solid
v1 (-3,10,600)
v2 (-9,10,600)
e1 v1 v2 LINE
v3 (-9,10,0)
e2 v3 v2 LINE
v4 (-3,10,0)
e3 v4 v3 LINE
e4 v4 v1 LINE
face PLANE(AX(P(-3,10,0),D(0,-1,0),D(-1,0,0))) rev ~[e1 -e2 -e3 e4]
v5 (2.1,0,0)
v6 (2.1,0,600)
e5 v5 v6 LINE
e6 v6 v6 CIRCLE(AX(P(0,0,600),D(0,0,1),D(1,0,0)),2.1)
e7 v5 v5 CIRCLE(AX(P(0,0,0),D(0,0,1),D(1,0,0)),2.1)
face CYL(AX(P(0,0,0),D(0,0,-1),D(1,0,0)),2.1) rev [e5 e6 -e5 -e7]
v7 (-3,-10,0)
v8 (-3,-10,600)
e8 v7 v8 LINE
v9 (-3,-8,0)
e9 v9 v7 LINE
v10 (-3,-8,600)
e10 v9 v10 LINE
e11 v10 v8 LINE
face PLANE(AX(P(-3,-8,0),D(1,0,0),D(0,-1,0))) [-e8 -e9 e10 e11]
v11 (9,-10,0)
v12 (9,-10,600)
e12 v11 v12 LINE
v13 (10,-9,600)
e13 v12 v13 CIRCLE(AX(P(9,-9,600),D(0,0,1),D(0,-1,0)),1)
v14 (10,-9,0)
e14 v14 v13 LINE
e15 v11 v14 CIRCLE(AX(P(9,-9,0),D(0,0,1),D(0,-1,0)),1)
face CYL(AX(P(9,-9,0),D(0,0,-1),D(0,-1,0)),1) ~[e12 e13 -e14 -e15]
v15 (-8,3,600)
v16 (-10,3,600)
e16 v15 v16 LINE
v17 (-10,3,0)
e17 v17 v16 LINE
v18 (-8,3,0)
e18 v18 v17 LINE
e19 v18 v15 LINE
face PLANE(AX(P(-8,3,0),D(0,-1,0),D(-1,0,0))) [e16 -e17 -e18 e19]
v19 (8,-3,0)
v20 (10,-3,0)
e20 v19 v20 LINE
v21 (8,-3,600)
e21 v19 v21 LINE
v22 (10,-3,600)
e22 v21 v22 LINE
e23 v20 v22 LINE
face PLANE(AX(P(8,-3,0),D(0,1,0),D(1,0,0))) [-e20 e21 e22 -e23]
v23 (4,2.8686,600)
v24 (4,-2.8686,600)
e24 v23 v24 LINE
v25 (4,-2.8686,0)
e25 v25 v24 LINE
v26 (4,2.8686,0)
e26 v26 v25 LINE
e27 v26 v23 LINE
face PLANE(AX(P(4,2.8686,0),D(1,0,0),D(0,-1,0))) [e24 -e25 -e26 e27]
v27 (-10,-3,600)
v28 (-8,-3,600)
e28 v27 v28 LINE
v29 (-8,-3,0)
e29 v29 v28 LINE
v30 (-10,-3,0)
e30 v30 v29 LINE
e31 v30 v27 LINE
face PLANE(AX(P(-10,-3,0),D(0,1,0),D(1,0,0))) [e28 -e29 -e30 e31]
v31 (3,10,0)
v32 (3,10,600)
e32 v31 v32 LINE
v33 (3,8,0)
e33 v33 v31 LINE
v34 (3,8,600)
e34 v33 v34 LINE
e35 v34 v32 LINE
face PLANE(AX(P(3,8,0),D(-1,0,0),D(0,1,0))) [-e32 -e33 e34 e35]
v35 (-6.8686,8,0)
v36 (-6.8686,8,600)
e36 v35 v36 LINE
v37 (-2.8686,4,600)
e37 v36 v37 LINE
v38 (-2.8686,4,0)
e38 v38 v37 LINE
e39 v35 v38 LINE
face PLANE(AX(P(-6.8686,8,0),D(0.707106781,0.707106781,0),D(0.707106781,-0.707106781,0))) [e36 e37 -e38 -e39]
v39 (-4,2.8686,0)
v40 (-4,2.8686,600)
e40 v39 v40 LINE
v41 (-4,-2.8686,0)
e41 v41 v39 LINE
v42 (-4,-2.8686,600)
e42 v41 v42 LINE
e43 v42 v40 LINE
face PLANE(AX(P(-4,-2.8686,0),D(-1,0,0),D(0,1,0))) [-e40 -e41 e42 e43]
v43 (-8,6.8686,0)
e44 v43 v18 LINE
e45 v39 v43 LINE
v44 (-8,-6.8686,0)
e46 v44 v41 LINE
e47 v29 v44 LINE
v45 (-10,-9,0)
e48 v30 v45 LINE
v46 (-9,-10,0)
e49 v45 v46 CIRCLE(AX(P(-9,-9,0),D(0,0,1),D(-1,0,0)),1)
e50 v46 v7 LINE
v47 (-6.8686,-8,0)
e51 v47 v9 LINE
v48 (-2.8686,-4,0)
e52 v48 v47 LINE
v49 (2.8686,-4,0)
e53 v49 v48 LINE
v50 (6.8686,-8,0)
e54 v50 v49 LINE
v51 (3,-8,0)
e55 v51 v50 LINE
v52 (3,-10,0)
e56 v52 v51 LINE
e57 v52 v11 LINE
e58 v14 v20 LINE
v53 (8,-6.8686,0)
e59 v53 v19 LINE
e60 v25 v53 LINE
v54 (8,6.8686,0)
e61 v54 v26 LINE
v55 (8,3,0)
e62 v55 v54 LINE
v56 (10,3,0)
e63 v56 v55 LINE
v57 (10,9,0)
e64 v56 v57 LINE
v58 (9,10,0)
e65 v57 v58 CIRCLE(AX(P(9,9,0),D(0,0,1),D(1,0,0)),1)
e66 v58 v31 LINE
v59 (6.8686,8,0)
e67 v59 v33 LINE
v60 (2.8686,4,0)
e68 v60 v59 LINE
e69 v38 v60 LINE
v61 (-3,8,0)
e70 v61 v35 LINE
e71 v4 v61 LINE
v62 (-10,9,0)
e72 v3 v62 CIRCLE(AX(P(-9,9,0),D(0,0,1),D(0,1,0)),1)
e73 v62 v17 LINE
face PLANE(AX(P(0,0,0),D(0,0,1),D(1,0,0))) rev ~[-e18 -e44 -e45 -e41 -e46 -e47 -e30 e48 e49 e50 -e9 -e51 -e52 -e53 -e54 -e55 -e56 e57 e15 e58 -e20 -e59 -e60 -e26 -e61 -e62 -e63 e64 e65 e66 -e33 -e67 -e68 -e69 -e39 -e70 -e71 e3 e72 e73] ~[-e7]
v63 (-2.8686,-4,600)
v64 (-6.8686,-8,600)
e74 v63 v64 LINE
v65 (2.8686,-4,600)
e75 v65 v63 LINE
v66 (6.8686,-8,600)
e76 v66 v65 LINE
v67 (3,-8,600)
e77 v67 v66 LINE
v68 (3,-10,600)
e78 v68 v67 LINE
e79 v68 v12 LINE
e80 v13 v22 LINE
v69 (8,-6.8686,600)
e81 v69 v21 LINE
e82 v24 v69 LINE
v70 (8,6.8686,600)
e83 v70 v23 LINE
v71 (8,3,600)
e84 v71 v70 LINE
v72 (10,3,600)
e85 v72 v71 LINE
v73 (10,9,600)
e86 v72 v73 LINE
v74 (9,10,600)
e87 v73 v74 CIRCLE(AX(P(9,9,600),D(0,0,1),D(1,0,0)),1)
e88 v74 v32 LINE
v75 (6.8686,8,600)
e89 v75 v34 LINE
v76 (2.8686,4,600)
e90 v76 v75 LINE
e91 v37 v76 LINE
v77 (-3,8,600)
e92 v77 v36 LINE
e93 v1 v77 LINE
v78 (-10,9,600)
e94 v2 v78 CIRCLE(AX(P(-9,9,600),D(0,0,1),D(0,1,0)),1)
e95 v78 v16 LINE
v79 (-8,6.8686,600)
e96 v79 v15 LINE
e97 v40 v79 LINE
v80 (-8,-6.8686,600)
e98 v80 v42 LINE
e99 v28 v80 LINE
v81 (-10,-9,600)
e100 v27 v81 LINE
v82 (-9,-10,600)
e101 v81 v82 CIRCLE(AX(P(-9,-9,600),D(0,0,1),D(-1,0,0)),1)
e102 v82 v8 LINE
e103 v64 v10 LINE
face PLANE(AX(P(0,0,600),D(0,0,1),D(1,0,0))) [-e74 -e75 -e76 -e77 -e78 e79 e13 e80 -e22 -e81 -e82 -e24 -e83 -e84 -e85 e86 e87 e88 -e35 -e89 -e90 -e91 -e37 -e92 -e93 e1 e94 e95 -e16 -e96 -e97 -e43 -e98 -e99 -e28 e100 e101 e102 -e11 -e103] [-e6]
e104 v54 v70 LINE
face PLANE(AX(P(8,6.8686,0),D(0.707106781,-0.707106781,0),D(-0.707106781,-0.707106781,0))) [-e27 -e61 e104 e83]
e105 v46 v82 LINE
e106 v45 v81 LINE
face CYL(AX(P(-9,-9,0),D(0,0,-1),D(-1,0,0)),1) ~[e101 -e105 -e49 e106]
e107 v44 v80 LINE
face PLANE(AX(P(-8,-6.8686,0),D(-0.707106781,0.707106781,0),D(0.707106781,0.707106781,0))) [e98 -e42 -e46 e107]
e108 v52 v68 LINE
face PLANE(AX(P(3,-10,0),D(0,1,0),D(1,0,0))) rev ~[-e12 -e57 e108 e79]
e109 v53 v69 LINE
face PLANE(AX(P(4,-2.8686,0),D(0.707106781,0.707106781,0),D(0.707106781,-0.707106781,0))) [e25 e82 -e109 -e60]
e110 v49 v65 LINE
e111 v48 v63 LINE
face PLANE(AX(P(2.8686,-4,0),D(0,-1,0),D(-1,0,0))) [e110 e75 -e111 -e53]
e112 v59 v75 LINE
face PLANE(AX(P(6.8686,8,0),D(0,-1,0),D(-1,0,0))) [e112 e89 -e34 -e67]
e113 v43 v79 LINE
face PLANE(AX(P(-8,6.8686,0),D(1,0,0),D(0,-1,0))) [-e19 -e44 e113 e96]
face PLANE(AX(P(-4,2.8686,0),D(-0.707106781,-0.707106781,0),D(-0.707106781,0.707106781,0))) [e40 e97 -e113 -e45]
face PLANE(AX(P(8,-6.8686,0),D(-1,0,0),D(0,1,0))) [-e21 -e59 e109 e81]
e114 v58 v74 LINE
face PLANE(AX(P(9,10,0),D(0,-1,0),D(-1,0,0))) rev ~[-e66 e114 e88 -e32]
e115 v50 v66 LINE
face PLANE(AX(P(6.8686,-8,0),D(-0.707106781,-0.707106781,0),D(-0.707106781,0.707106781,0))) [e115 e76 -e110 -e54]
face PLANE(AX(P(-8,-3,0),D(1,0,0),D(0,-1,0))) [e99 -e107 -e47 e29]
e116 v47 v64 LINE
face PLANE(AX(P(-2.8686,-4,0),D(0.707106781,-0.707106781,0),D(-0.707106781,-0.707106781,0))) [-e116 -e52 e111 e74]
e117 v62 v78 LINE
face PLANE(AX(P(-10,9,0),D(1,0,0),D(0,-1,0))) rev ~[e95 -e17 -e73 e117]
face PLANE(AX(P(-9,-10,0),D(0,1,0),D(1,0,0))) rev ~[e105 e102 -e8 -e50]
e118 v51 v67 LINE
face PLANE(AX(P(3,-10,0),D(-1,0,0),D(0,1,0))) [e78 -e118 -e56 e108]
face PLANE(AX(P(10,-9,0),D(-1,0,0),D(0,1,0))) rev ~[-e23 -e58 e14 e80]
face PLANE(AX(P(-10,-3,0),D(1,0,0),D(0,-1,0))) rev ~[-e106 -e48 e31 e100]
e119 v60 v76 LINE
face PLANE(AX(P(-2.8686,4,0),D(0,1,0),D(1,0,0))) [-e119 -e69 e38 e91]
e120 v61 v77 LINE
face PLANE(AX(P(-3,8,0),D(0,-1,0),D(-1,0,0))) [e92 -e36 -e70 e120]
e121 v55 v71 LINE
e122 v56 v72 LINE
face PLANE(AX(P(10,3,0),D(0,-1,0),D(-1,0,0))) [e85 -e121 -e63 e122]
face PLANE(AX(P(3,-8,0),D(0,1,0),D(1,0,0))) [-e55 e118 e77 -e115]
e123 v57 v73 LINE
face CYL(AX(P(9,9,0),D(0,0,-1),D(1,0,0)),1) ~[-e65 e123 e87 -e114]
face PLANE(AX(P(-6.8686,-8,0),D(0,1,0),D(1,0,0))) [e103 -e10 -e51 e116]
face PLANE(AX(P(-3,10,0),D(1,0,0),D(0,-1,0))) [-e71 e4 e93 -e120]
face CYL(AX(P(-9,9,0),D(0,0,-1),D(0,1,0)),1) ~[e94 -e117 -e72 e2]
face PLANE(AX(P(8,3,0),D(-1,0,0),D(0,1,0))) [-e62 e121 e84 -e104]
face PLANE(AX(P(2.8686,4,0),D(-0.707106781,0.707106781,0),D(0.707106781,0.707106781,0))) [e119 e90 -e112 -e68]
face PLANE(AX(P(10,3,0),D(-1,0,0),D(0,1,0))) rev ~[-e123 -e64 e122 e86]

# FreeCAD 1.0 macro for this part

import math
import FreeCAD as App
import Part
import Sketcher
Q = App.Units.Quantity

doc = App.newDocument("Part")
body = doc.addObject("PartDesign::Body", "Body")

# Sketch on XY plane
sketch1 = doc.addObject("Sketcher::SketchObject", "Sketch")
body.addObject(sketch1)
sketch1.AttachmentSupport = (doc.XY_Plane, [""])
sketch1.MapMode = "FlatFace"
sketch1.addGeometry([
    Part.LineSegment(App.Vector(8, 3, 0), App.Vector(10, 3, 0)),  # 0
    Part.LineSegment(App.Vector(10, 3, 0), App.Vector(10, 9, 0)),  # 1
    Part.ArcOfCircle(Part.Circle(App.Vector(9, 9, 0), App.Vector(0, 0, 1), 1), math.radians(0), math.radians(90)),  # 2
    Part.LineSegment(App.Vector(9, 10, 0), App.Vector(3, 10, 0)),  # 3
    Part.LineSegment(App.Vector(3, 10, 0), App.Vector(3, 8, 0)),  # 4
    Part.LineSegment(App.Vector(3, 8, 0), App.Vector(6.9, 8, 0)),  # 5
    Part.LineSegment(App.Vector(6.9, 8, 0), App.Vector(2.9, 4, 0)),  # 6
    Part.LineSegment(App.Vector(2.9, 4, 0), App.Vector(-2.9, 4, 0)),  # 7
    Part.LineSegment(App.Vector(-2.9, 4, 0), App.Vector(-6.9, 8, 0)),  # 8
    Part.LineSegment(App.Vector(-6.9, 8, 0), App.Vector(-3, 8, 0)),  # 9
    Part.LineSegment(App.Vector(-3, 8, 0), App.Vector(-3, 10, 0)),  # 10
    Part.LineSegment(App.Vector(-3, 10, 0), App.Vector(-9, 10, 0)),  # 11
    Part.ArcOfCircle(Part.Circle(App.Vector(-9, 9, 0), App.Vector(0, 0, 1), 1), math.radians(90), math.radians(180)),  # 12
    Part.LineSegment(App.Vector(-10, 9, 0), App.Vector(-10, 3, 0)),  # 13
    Part.LineSegment(App.Vector(-10, 3, 0), App.Vector(-8, 3, 0)),  # 14
    Part.LineSegment(App.Vector(-8, 3, 0), App.Vector(-8, 6.9, 0)),  # 15
    Part.LineSegment(App.Vector(-8, 6.9, 0), App.Vector(-4, 2.9, 0)),  # 16
    Part.LineSegment(App.Vector(-4, 2.9, 0), App.Vector(-4, -2.9, 0)),  # 17
    Part.LineSegment(App.Vector(-4, -2.9, 0), App.Vector(-8, -6.9, 0)),  # 18
    Part.LineSegment(App.Vector(-8, -6.9, 0), App.Vector(-8, -3, 0)),  # 19
    Part.LineSegment(App.Vector(-8, -3, 0), App.Vector(-10, -3, 0)),  # 20
    Part.LineSegment(App.Vector(-10, -3, 0), App.Vector(-10, -9, 0)),  # 21
    Part.ArcOfCircle(Part.Circle(App.Vector(-9, -9, 0), App.Vector(0, 0, 1), 1), math.radians(180), math.radians(270)),  # 22
    Part.LineSegment(App.Vector(-9, -10, 0), App.Vector(-3, -10, 0)),  # 23
    Part.LineSegment(App.Vector(-3, -10, 0), App.Vector(-3, -8, 0)),  # 24
    Part.LineSegment(App.Vector(-3, -8, 0), App.Vector(-6.9, -8, 0)),  # 25
    Part.LineSegment(App.Vector(-6.9, -8, 0), App.Vector(-2.9, -4, 0)),  # 26
    Part.LineSegment(App.Vector(-2.9, -4, 0), App.Vector(2.9, -4, 0)),  # 27
    Part.LineSegment(App.Vector(2.9, -4, 0), App.Vector(6.9, -8, 0)),  # 28
    Part.LineSegment(App.Vector(6.9, -8, 0), App.Vector(3, -8, 0)),  # 29
    Part.LineSegment(App.Vector(3, -8, 0), App.Vector(3, -10, 0)),  # 30
    Part.LineSegment(App.Vector(3, -10, 0), App.Vector(9, -10, 0)),  # 31
    Part.ArcOfCircle(Part.Circle(App.Vector(9, -9, 0), App.Vector(0, 0, 1), 1), math.radians(-90), math.radians(0)),  # 32
    Part.LineSegment(App.Vector(10, -9, 0), App.Vector(10, -3, 0)),  # 33
    Part.LineSegment(App.Vector(10, -3, 0), App.Vector(8, -3, 0)),  # 34
    Part.LineSegment(App.Vector(8, -3, 0), App.Vector(8, -6.9, 0)),  # 35
    Part.LineSegment(App.Vector(8, -6.9, 0), App.Vector(4, -2.9, 0)),  # 36
    Part.LineSegment(App.Vector(4, -2.9, 0), App.Vector(4, 2.9, 0)),  # 37
    Part.LineSegment(App.Vector(4, 2.9, 0), App.Vector(8, 6.9, 0)),  # 38
    Part.LineSegment(App.Vector(8, 6.9, 0), App.Vector(8, 3, 0)),  # 39
    Part.Circle(App.Vector(0, 0, 0), App.Vector(0, 0, 1), 2.1),  # 40
], False)
sketch1.addConstraint([
    Sketcher.Constraint("Coincident", 0, 2, 1, 1),
    Sketcher.Constraint("Tangent", 1, 2, 2, 1),
    Sketcher.Constraint("Tangent", 2, 2, 3, 1),
    Sketcher.Constraint("Coincident", 3, 2, 4, 1),
    Sketcher.Constraint("Coincident", 4, 2, 5, 1),
    Sketcher.Constraint("Coincident", 5, 2, 6, 1),
    Sketcher.Constraint("Coincident", 6, 2, 7, 1),
    Sketcher.Constraint("Coincident", 7, 2, 8, 1),
    Sketcher.Constraint("Coincident", 8, 2, 9, 1),
    Sketcher.Constraint("Coincident", 9, 2, 10, 1),
    Sketcher.Constraint("Coincident", 10, 2, 11, 1),
    Sketcher.Constraint("Tangent", 11, 2, 12, 1),
    Sketcher.Constraint("Tangent", 12, 2, 13, 1),
    Sketcher.Constraint("Coincident", 13, 2, 14, 1),
    Sketcher.Constraint("Coincident", 14, 2, 15, 1),
    Sketcher.Constraint("Coincident", 15, 2, 16, 1),
    Sketcher.Constraint("Coincident", 16, 2, 17, 1),
    Sketcher.Constraint("Coincident", 17, 2, 18, 1),
    Sketcher.Constraint("Coincident", 18, 2, 19, 1),
    Sketcher.Constraint("Coincident", 19, 2, 20, 1),
    Sketcher.Constraint("Coincident", 20, 2, 21, 1),
    Sketcher.Constraint("Tangent", 21, 2, 22, 1),
    Sketcher.Constraint("Tangent", 22, 2, 23, 1),
    Sketcher.Constraint("Coincident", 23, 2, 24, 1),
    Sketcher.Constraint("Coincident", 24, 2, 25, 1),
    Sketcher.Constraint("Coincident", 25, 2, 26, 1),
    Sketcher.Constraint("Coincident", 26, 2, 27, 1),
    Sketcher.Constraint("Coincident", 27, 2, 28, 1),
    Sketcher.Constraint("Coincident", 28, 2, 29, 1),
    Sketcher.Constraint("Coincident", 29, 2, 30, 1),
    Sketcher.Constraint("Coincident", 30, 2, 31, 1),
    Sketcher.Constraint("Tangent", 31, 2, 32, 1),
    Sketcher.Constraint("Tangent", 32, 2, 33, 1),
    Sketcher.Constraint("Coincident", 33, 2, 34, 1),
    Sketcher.Constraint("Coincident", 34, 2, 35, 1),
    Sketcher.Constraint("Coincident", 35, 2, 36, 1),
    Sketcher.Constraint("Coincident", 36, 2, 37, 1),
    Sketcher.Constraint("Coincident", 37, 2, 38, 1),
    Sketcher.Constraint("Coincident", 38, 2, 39, 1),
    Sketcher.Constraint("Coincident", 39, 2, 0, 1),
    Sketcher.Constraint("Horizontal", 0),
    Sketcher.Constraint("Vertical", 1),
    Sketcher.Constraint("Horizontal", 3),
    Sketcher.Constraint("Vertical", 4),
    Sketcher.Constraint("Horizontal", 5),
    Sketcher.Constraint("Horizontal", 7),
    Sketcher.Constraint("Horizontal", 9),
    Sketcher.Constraint("Vertical", 10),
    Sketcher.Constraint("Horizontal", 11),
    Sketcher.Constraint("Vertical", 13),
    Sketcher.Constraint("Horizontal", 14),
    Sketcher.Constraint("Vertical", 15),
    Sketcher.Constraint("Vertical", 17),
    Sketcher.Constraint("Vertical", 19),
    Sketcher.Constraint("Horizontal", 20),
    Sketcher.Constraint("Vertical", 21),
    Sketcher.Constraint("Horizontal", 23),
    Sketcher.Constraint("Vertical", 24),
    Sketcher.Constraint("Horizontal", 25),
    Sketcher.Constraint("Horizontal", 27),
    Sketcher.Constraint("Horizontal", 29),
    Sketcher.Constraint("Vertical", 30),
    Sketcher.Constraint("Horizontal", 31),
    Sketcher.Constraint("Vertical", 33),
    Sketcher.Constraint("Horizontal", 34),
    Sketcher.Constraint("Vertical", 35),
    Sketcher.Constraint("Vertical", 37),
    Sketcher.Constraint("Vertical", 39),
    Sketcher.Constraint("Coincident", 40, 3, -1, 1),
    Sketcher.Constraint("Equal", 2, 12),
    Sketcher.Constraint("Equal", 12, 22),
    Sketcher.Constraint("Equal", 22, 32),
    Sketcher.Constraint("Symmetric", 2, 3, 22, 3, -1, 1),
    Sketcher.Constraint("Symmetric", 12, 3, 32, 3, -1, 1),
    Sketcher.Constraint("Symmetric", 4, 2, 24, 2, -1, 1),
    Sketcher.Constraint("Symmetric", 6, 2, 26, 2, -1, 1),
    Sketcher.Constraint("Symmetric", 8, 2, 28, 2, -1, 1),
    Sketcher.Constraint("Symmetric", 14, 2, 34, 2, -1, 1),
    Sketcher.Constraint("Symmetric", 16, 2, 36, 2, -1, 1),
    Sketcher.Constraint("Symmetric", 18, 2, 38, 2, -1, 1),
    Sketcher.Constraint("Symmetric", 2, 3, 12, 3, -2),
    Sketcher.Constraint("Symmetric", 5, 2, 8, 2, -2),
    Sketcher.Constraint("Symmetric", 19, 2, 34, 2, -2),
    Sketcher.Constraint("Perpendicular", 6, 8),
    Sketcher.Constraint("Parallel", 8, 16),
    Sketcher.Constraint("Perpendicular", 16, 18),
    Sketcher.Constraint("Parallel", 18, 26),
    Sketcher.Constraint("Perpendicular", 26, 28),
    Sketcher.Constraint("Parallel", 28, 36),
    Sketcher.Constraint("Perpendicular", 36, 38),
    Sketcher.Constraint("Horizontal", 0, 2, 13, 2),
    Sketcher.Constraint("Horizontal", 18, 2, 35, 2),
    Sketcher.Constraint("Horizontal", 17, 2, 36, 2),
    Sketcher.Constraint("Vertical", 10, 2, 23, 2),
    Sketcher.Constraint("Vertical", 4, 2, 29, 2),
    Sketcher.Constraint("Equal", 31, 1),
    Sketcher.Constraint("Equal", 34, 4),
    Sketcher.Constraint("Equal", 29, 15),
    Sketcher.Constraint("Equal", 27, 17),
    Sketcher.Constraint("Equal", 8, 16),
    Sketcher.Constraint("Radius", 2, Q("1 mm")),
    Sketcher.Constraint("Diameter", 40, Q("4.2 mm")),
    Sketcher.Constraint("DistanceX", 0, 1, 0, 2, Q("2 mm")),
    Sketcher.Constraint("DistanceX", 3, 2, 3, 1, Q("6 mm")),
    Sketcher.Constraint("DistanceY", -1, 1, 6, 2, Q("4 mm")),
    Sketcher.Constraint("DistanceY", 6, 2, 4, 2, Q("4 mm")),
    Sketcher.Constraint("DistanceX", 5, 1, 5, 2, Q("3.8686 mm")),
])
pad1 = doc.addObject("PartDesign::Pad", "Pad")
body.addObject(pad1)
pad1.Profile = sketch1
pad1.Length = 600

doc.recompute()
